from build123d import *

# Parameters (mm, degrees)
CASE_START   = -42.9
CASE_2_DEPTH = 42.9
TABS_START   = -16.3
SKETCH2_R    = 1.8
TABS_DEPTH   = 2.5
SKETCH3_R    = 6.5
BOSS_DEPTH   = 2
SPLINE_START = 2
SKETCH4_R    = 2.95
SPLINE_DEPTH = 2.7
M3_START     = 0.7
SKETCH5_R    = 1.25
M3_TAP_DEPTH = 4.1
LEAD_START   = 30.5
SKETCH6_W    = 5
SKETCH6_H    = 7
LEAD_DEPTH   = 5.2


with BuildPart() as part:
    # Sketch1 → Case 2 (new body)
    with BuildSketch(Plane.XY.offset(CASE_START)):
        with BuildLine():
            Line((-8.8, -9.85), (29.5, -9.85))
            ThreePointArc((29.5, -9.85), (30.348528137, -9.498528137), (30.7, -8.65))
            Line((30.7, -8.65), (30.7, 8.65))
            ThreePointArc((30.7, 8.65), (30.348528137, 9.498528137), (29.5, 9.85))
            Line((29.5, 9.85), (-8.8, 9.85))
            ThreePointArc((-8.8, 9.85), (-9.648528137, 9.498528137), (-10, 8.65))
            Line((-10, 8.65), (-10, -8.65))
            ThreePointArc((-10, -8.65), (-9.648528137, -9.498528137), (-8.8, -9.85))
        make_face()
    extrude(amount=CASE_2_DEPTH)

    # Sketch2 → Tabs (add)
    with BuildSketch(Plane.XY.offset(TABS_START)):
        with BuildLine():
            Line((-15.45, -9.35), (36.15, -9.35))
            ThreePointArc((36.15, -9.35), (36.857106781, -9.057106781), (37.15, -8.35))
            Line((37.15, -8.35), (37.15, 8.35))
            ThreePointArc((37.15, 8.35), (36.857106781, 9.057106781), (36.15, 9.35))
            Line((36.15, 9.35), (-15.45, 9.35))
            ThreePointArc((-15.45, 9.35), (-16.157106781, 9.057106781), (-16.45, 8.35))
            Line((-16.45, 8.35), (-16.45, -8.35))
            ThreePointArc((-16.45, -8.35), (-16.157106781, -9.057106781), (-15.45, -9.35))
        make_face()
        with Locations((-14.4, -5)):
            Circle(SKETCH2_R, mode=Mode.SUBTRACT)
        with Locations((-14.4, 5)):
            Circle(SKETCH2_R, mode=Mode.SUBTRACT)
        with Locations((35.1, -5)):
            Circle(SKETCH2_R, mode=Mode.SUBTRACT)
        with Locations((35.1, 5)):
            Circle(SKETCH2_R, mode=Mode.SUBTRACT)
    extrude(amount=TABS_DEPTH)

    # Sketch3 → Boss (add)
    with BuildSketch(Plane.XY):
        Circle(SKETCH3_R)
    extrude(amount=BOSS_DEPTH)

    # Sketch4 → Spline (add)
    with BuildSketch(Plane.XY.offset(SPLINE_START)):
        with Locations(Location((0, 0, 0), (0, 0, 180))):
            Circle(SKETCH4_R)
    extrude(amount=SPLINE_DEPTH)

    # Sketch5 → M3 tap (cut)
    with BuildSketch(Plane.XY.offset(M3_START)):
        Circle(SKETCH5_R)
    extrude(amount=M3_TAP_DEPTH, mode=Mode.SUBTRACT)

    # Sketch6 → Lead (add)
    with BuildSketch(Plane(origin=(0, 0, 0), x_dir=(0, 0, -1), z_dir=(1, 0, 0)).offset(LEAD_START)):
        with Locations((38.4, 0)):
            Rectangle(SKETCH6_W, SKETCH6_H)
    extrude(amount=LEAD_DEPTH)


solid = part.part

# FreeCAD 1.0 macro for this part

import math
import FreeCAD as App
import Part
import Sketcher


def add_polygon(sketch, points):
    """Adds a closed chain of lines whose ends are joined by coincident constraints."""
    first, n = sketch.GeometryCount, len(points)
    for a, b in zip(points, points[1:] + points[:1]):
        sketch.addGeometry(Part.LineSegment(App.Vector(*a, 0), App.Vector(*b, 0)), False)
    for i in range(n):
        sketch.addConstraint(Sketcher.Constraint("Coincident", first + i, 2, first + (i + 1) % n, 1))

doc = App.newDocument("Part")
body = doc.addObject("PartDesign::Body", "Body")

# Sketch on XY plane
sketch1 = body.newObject("Sketcher::SketchObject", "Sketch")
sketch1.AttachmentSupport = (doc.getObject("XY_Plane"), [""])
sketch1.MapMode = "FlatFace"
sketch1.AttachmentOffset = App.Placement(App.Vector(0, 0, -42.9), App.Rotation())
sketch1.addGeometry(Part.LineSegment(App.Vector(-8.8, -9.85, 0), App.Vector(29.5, -9.85, 0)), False)
sketch1.addGeometry(Part.ArcOfCircle(Part.Circle(App.Vector(29.5, -8.65, 0), App.Vector(0, 0, 1), 1.2), math.radians(-90), math.radians(0)), False)
sketch1.addGeometry(Part.LineSegment(App.Vector(30.7, -8.65, 0), App.Vector(30.7, 8.65, 0)), False)
sketch1.addGeometry(Part.ArcOfCircle(Part.Circle(App.Vector(29.5, 8.65, 0), App.Vector(0, 0, 1), 1.2), math.radians(0), math.radians(90)), False)
sketch1.addGeometry(Part.LineSegment(App.Vector(29.5, 9.85, 0), App.Vector(-8.8, 9.85, 0)), False)
sketch1.addGeometry(Part.ArcOfCircle(Part.Circle(App.Vector(-8.8, 8.65, 0), App.Vector(0, 0, 1), 1.2), math.radians(90), math.radians(180)), False)
sketch1.addGeometry(Part.LineSegment(App.Vector(-10, 8.65, 0), App.Vector(-10, -8.65, 0)), False)
sketch1.addGeometry(Part.ArcOfCircle(Part.Circle(App.Vector(-8.8, -8.65, 0), App.Vector(0, 0, 1), 1.2), math.radians(-180), math.radians(-90)), False)
sketch1.addConstraint(Sketcher.Constraint("Tangent", 0, 2, 1, 1))
sketch1.addConstraint(Sketcher.Constraint("Tangent", 1, 2, 2, 1))
sketch1.addConstraint(Sketcher.Constraint("Tangent", 2, 2, 3, 1))
sketch1.addConstraint(Sketcher.Constraint("Tangent", 3, 2, 4, 1))
sketch1.addConstraint(Sketcher.Constraint("Tangent", 4, 2, 5, 1))
sketch1.addConstraint(Sketcher.Constraint("Tangent", 5, 2, 6, 1))
sketch1.addConstraint(Sketcher.Constraint("Tangent", 6, 2, 7, 1))
sketch1.addConstraint(Sketcher.Constraint("Tangent", 7, 2, 0, 1))
sketch1.addConstraint(Sketcher.Constraint("Horizontal", 0))
sketch1.addConstraint(Sketcher.Constraint("Vertical", 2))
sketch1.addConstraint(Sketcher.Constraint("Horizontal", 4))
sketch1.addConstraint(Sketcher.Constraint("Vertical", 6))
sketch1.addConstraint(Sketcher.Constraint("Equal", 1, 3))
sketch1.addConstraint(Sketcher.Constraint("Equal", 3, 5))
sketch1.addConstraint(Sketcher.Constraint("Equal", 5, 7))
sketch1.addConstraint(Sketcher.Constraint("Radius", 1, 1.2))
sketch1.addConstraint(Sketcher.Constraint("DistanceX", 0, 1, 0, 2, 38.3))
sketch1.addConstraint(Sketcher.Constraint("DistanceY", 2, 1, 2, 2, 17.3))
sketch1.addConstraint(Sketcher.Constraint("DistanceX", 5, 2, -1, 1, 10.0))
sketch1.addConstraint(Sketcher.Constraint("DistanceY", 1, 3, -1, 1, 8.65))
pad1 = body.newObject("PartDesign::Pad", "Pad")
pad1.Profile = sketch1
pad1.Length = 42.9

# Sketch on XY plane
sketch2 = body.newObject("Sketcher::SketchObject", "Sketch001")
sketch2.AttachmentSupport = (doc.getObject("XY_Plane"), [""])
sketch2.MapMode = "FlatFace"
sketch2.AttachmentOffset = App.Placement(App.Vector(0, 0, -16.3), App.Rotation())
sketch2.addGeometry(Part.LineSegment(App.Vector(-15.45, -9.35, 0), App.Vector(36.15, -9.35, 0)), False)
sketch2.addGeometry(Part.ArcOfCircle(Part.Circle(App.Vector(36.15, -8.35, 0), App.Vector(0, 0, 1), 1), math.radians(-90), math.radians(0)), False)
sketch2.addGeometry(Part.LineSegment(App.Vector(37.15, -8.35, 0), App.Vector(37.15, 8.35, 0)), False)
sketch2.addGeometry(Part.ArcOfCircle(Part.Circle(App.Vector(36.15, 8.35, 0), App.Vector(0, 0, 1), 1), math.radians(0), math.radians(90)), False)
sketch2.addGeometry(Part.LineSegment(App.Vector(36.15, 9.35, 0), App.Vector(-15.45, 9.35, 0)), False)
sketch2.addGeometry(Part.ArcOfCircle(Part.Circle(App.Vector(-15.45, 8.35, 0), App.Vector(0, 0, 1), 1), math.radians(90), math.radians(180)), False)
sketch2.addGeometry(Part.LineSegment(App.Vector(-16.45, 8.35, 0), App.Vector(-16.45, -8.35, 0)), False)
sketch2.addGeometry(Part.ArcOfCircle(Part.Circle(App.Vector(-15.45, -8.35, 0), App.Vector(0, 0, 1), 1), math.radians(-180), math.radians(-90)), False)
sketch2.addGeometry(Part.Circle(App.Vector(-14.4, -5, 0), App.Vector(0, 0, 1), 1.8), False)
sketch2.addGeometry(Part.Circle(App.Vector(35.1, -5, 0), App.Vector(0, 0, 1), 1.8), False)
sketch2.addGeometry(Part.Circle(App.Vector(-14.4, 5, 0), App.Vector(0, 0, 1), 1.8), False)
sketch2.addGeometry(Part.Circle(App.Vector(35.1, 5, 0), App.Vector(0, 0, 1), 1.8), False)
sketch2.addConstraint(Sketcher.Constraint("Tangent", 0, 2, 1, 1))
sketch2.addConstraint(Sketcher.Constraint("Tangent", 1, 2, 2, 1))
sketch2.addConstraint(Sketcher.Constraint("Tangent", 2, 2, 3, 1))
sketch2.addConstraint(Sketcher.Constraint("Tangent", 3, 2, 4, 1))
sketch2.addConstraint(Sketcher.Constraint("Tangent", 4, 2, 5, 1))
sketch2.addConstraint(Sketcher.Constraint("Tangent", 5, 2, 6, 1))
sketch2.addConstraint(Sketcher.Constraint("Tangent", 6, 2, 7, 1))
sketch2.addConstraint(Sketcher.Constraint("Tangent", 7, 2, 0, 1))
sketch2.addConstraint(Sketcher.Constraint("Horizontal", 0))
sketch2.addConstraint(Sketcher.Constraint("Vertical", 2))
sketch2.addConstraint(Sketcher.Constraint("Horizontal", 4))
sketch2.addConstraint(Sketcher.Constraint("Vertical", 6))
sketch2.addConstraint(Sketcher.Constraint("Equal", 1, 3))
sketch2.addConstraint(Sketcher.Constraint("Equal", 3, 5))
sketch2.addConstraint(Sketcher.Constraint("Equal", 5, 7))
sketch2.addConstraint(Sketcher.Constraint("Equal", 8, 9))
sketch2.addConstraint(Sketcher.Constraint("Equal", 9, 10))
sketch2.addConstraint(Sketcher.Constraint("Equal", 10, 11))
sketch2.addConstraint(Sketcher.Constraint("Symmetric", 8, 3, 10, 3, -1))
sketch2.addConstraint(Sketcher.Constraint("Symmetric", 9, 3, 11, 3, -1))
sketch2.addConstraint(Sketcher.Constraint("Horizontal", 8, 3, 9, 3))
sketch2.addConstraint(Sketcher.Constraint("Radius", 1, 1.0))
sketch2.addConstraint(Sketcher.Constraint("Diameter", 8, 3.6))
sketch2.addConstraint(Sketcher.Constraint("DistanceX", 0, 1, 0, 2, 51.6))
sketch2.addConstraint(Sketcher.Constraint("DistanceY", 2, 1, 2, 2, 16.7))
sketch2.addConstraint(Sketcher.Constraint("DistanceY", 8, 3, -1, 1, 5.0))
sketch2.addConstraint(Sketcher.Constraint("DistanceX", 8, 3, -1, 1, 14.4))
sketch2.addConstraint(Sketcher.Constraint("DistanceX", -1, 1, 9, 3, 35.1))
sketch2.addConstraint(Sketcher.Constraint("DistanceX", -1, 1, 1, 3, 36.15))
sketch2.addConstraint(Sketcher.Constraint("DistanceY", 1, 3, -1, 1, 8.35))
pad2 = body.newObject("PartDesign::Pad", "Pad001")
pad2.Profile = sketch2
pad2.Length = 2.5

# Sketch on XY plane
sketch3 = body.newObject("Sketcher::SketchObject", "Sketch002")
sketch3.AttachmentSupport = (doc.getObject("XY_Plane"), [""])
sketch3.MapMode = "FlatFace"
sketch3.addGeometry(Part.Circle(App.Vector(0, 0, 0), App.Vector(0, 0, 1), 6.5), False)
sketch3.addConstraint(Sketcher.Constraint("Coincident", 0, 3, -1, 1))
sketch3.addConstraint(Sketcher.Constraint("Diameter", 0, 13.0))
pad3 = body.newObject("PartDesign::Pad", "Pad002")
pad3.Profile = sketch3
pad3.Length = 2

# Sketch on XY plane
sketch4 = body.newObject("Sketcher::SketchObject", "Sketch003")
sketch4.AttachmentSupport = (doc.getObject("XY_Plane"), [""])
sketch4.MapMode = "FlatFace"
sketch4.AttachmentOffset = App.Placement(App.Vector(0, 0, 2), App.Rotation())
sketch4.addGeometry(Part.Circle(App.Vector(0, 0, 0), App.Vector(0, 0, 1), 2.95), False)
sketch4.addConstraint(Sketcher.Constraint("Coincident", 0, 3, -1, 1))
sketch4.addConstraint(Sketcher.Constraint("Diameter", 0, 5.9))
pad4 = body.newObject("PartDesign::Pad", "Pad003")
pad4.Profile = sketch4
pad4.Length = 2.7

# Sketch on XY plane
sketch5 = body.newObject("Sketcher::SketchObject", "Sketch004")
sketch5.AttachmentSupport = (doc.getObject("XY_Plane"), [""])
sketch5.MapMode = "FlatFace"
sketch5.AttachmentOffset = App.Placement(App.Vector(0, 0, 0.7), App.Rotation())
sketch5.addGeometry(Part.Circle(App.Vector(0, 0, 0), App.Vector(0, 0, 1), 1.25), False)
sketch5.addConstraint(Sketcher.Constraint("Coincident", 0, 3, -1, 1))
sketch5.addConstraint(Sketcher.Constraint("Diameter", 0, 2.5))
pocket1 = body.newObject("PartDesign::Pocket", "Pocket")
pocket1.Profile = sketch5
pocket1.Length = 4.1
pocket1.Reversed = True

# Sketch on YZ plane
sketch6 = body.newObject("Sketcher::SketchObject", "Sketch005")
sketch6.AttachmentSupport = (doc.getObject("YZ_Plane"), [""])
sketch6.MapMode = "FlatFace"
sketch6.AttachmentOffset = App.Placement(App.Vector(0, 0, 30.5), App.Rotation())
add_polygon(sketch6, [(3.5, -35.9), (-3.5, -35.9), (-3.5, -40.9), (3.5, -40.9)])  # lines 0-3
sketch6.addConstraint(Sketcher.Constraint("Horizontal", 0))
sketch6.addConstraint(Sketcher.Constraint("Vertical", 1))
sketch6.addConstraint(Sketcher.Constraint("Horizontal", 2))
sketch6.addConstraint(Sketcher.Constraint("Vertical", 3))
sketch6.addConstraint(Sketcher.Constraint("DistanceX", 0, 2, 0, 1, 7.0))
sketch6.addConstraint(Sketcher.Constraint("DistanceY", 1, 2, 1, 1, 5.0))
sketch6.addConstraint(Sketcher.Constraint("DistanceX", 0, 2, -1, 1, 3.5))
sketch6.addConstraint(Sketcher.Constraint("DistanceY", 0, 2, -1, 1, 35.9))
pad5 = body.newObject("PartDesign::Pad", "Pad004")
pad5.Profile = sketch6
pad5.Length = 5.2

doc.recompute()
